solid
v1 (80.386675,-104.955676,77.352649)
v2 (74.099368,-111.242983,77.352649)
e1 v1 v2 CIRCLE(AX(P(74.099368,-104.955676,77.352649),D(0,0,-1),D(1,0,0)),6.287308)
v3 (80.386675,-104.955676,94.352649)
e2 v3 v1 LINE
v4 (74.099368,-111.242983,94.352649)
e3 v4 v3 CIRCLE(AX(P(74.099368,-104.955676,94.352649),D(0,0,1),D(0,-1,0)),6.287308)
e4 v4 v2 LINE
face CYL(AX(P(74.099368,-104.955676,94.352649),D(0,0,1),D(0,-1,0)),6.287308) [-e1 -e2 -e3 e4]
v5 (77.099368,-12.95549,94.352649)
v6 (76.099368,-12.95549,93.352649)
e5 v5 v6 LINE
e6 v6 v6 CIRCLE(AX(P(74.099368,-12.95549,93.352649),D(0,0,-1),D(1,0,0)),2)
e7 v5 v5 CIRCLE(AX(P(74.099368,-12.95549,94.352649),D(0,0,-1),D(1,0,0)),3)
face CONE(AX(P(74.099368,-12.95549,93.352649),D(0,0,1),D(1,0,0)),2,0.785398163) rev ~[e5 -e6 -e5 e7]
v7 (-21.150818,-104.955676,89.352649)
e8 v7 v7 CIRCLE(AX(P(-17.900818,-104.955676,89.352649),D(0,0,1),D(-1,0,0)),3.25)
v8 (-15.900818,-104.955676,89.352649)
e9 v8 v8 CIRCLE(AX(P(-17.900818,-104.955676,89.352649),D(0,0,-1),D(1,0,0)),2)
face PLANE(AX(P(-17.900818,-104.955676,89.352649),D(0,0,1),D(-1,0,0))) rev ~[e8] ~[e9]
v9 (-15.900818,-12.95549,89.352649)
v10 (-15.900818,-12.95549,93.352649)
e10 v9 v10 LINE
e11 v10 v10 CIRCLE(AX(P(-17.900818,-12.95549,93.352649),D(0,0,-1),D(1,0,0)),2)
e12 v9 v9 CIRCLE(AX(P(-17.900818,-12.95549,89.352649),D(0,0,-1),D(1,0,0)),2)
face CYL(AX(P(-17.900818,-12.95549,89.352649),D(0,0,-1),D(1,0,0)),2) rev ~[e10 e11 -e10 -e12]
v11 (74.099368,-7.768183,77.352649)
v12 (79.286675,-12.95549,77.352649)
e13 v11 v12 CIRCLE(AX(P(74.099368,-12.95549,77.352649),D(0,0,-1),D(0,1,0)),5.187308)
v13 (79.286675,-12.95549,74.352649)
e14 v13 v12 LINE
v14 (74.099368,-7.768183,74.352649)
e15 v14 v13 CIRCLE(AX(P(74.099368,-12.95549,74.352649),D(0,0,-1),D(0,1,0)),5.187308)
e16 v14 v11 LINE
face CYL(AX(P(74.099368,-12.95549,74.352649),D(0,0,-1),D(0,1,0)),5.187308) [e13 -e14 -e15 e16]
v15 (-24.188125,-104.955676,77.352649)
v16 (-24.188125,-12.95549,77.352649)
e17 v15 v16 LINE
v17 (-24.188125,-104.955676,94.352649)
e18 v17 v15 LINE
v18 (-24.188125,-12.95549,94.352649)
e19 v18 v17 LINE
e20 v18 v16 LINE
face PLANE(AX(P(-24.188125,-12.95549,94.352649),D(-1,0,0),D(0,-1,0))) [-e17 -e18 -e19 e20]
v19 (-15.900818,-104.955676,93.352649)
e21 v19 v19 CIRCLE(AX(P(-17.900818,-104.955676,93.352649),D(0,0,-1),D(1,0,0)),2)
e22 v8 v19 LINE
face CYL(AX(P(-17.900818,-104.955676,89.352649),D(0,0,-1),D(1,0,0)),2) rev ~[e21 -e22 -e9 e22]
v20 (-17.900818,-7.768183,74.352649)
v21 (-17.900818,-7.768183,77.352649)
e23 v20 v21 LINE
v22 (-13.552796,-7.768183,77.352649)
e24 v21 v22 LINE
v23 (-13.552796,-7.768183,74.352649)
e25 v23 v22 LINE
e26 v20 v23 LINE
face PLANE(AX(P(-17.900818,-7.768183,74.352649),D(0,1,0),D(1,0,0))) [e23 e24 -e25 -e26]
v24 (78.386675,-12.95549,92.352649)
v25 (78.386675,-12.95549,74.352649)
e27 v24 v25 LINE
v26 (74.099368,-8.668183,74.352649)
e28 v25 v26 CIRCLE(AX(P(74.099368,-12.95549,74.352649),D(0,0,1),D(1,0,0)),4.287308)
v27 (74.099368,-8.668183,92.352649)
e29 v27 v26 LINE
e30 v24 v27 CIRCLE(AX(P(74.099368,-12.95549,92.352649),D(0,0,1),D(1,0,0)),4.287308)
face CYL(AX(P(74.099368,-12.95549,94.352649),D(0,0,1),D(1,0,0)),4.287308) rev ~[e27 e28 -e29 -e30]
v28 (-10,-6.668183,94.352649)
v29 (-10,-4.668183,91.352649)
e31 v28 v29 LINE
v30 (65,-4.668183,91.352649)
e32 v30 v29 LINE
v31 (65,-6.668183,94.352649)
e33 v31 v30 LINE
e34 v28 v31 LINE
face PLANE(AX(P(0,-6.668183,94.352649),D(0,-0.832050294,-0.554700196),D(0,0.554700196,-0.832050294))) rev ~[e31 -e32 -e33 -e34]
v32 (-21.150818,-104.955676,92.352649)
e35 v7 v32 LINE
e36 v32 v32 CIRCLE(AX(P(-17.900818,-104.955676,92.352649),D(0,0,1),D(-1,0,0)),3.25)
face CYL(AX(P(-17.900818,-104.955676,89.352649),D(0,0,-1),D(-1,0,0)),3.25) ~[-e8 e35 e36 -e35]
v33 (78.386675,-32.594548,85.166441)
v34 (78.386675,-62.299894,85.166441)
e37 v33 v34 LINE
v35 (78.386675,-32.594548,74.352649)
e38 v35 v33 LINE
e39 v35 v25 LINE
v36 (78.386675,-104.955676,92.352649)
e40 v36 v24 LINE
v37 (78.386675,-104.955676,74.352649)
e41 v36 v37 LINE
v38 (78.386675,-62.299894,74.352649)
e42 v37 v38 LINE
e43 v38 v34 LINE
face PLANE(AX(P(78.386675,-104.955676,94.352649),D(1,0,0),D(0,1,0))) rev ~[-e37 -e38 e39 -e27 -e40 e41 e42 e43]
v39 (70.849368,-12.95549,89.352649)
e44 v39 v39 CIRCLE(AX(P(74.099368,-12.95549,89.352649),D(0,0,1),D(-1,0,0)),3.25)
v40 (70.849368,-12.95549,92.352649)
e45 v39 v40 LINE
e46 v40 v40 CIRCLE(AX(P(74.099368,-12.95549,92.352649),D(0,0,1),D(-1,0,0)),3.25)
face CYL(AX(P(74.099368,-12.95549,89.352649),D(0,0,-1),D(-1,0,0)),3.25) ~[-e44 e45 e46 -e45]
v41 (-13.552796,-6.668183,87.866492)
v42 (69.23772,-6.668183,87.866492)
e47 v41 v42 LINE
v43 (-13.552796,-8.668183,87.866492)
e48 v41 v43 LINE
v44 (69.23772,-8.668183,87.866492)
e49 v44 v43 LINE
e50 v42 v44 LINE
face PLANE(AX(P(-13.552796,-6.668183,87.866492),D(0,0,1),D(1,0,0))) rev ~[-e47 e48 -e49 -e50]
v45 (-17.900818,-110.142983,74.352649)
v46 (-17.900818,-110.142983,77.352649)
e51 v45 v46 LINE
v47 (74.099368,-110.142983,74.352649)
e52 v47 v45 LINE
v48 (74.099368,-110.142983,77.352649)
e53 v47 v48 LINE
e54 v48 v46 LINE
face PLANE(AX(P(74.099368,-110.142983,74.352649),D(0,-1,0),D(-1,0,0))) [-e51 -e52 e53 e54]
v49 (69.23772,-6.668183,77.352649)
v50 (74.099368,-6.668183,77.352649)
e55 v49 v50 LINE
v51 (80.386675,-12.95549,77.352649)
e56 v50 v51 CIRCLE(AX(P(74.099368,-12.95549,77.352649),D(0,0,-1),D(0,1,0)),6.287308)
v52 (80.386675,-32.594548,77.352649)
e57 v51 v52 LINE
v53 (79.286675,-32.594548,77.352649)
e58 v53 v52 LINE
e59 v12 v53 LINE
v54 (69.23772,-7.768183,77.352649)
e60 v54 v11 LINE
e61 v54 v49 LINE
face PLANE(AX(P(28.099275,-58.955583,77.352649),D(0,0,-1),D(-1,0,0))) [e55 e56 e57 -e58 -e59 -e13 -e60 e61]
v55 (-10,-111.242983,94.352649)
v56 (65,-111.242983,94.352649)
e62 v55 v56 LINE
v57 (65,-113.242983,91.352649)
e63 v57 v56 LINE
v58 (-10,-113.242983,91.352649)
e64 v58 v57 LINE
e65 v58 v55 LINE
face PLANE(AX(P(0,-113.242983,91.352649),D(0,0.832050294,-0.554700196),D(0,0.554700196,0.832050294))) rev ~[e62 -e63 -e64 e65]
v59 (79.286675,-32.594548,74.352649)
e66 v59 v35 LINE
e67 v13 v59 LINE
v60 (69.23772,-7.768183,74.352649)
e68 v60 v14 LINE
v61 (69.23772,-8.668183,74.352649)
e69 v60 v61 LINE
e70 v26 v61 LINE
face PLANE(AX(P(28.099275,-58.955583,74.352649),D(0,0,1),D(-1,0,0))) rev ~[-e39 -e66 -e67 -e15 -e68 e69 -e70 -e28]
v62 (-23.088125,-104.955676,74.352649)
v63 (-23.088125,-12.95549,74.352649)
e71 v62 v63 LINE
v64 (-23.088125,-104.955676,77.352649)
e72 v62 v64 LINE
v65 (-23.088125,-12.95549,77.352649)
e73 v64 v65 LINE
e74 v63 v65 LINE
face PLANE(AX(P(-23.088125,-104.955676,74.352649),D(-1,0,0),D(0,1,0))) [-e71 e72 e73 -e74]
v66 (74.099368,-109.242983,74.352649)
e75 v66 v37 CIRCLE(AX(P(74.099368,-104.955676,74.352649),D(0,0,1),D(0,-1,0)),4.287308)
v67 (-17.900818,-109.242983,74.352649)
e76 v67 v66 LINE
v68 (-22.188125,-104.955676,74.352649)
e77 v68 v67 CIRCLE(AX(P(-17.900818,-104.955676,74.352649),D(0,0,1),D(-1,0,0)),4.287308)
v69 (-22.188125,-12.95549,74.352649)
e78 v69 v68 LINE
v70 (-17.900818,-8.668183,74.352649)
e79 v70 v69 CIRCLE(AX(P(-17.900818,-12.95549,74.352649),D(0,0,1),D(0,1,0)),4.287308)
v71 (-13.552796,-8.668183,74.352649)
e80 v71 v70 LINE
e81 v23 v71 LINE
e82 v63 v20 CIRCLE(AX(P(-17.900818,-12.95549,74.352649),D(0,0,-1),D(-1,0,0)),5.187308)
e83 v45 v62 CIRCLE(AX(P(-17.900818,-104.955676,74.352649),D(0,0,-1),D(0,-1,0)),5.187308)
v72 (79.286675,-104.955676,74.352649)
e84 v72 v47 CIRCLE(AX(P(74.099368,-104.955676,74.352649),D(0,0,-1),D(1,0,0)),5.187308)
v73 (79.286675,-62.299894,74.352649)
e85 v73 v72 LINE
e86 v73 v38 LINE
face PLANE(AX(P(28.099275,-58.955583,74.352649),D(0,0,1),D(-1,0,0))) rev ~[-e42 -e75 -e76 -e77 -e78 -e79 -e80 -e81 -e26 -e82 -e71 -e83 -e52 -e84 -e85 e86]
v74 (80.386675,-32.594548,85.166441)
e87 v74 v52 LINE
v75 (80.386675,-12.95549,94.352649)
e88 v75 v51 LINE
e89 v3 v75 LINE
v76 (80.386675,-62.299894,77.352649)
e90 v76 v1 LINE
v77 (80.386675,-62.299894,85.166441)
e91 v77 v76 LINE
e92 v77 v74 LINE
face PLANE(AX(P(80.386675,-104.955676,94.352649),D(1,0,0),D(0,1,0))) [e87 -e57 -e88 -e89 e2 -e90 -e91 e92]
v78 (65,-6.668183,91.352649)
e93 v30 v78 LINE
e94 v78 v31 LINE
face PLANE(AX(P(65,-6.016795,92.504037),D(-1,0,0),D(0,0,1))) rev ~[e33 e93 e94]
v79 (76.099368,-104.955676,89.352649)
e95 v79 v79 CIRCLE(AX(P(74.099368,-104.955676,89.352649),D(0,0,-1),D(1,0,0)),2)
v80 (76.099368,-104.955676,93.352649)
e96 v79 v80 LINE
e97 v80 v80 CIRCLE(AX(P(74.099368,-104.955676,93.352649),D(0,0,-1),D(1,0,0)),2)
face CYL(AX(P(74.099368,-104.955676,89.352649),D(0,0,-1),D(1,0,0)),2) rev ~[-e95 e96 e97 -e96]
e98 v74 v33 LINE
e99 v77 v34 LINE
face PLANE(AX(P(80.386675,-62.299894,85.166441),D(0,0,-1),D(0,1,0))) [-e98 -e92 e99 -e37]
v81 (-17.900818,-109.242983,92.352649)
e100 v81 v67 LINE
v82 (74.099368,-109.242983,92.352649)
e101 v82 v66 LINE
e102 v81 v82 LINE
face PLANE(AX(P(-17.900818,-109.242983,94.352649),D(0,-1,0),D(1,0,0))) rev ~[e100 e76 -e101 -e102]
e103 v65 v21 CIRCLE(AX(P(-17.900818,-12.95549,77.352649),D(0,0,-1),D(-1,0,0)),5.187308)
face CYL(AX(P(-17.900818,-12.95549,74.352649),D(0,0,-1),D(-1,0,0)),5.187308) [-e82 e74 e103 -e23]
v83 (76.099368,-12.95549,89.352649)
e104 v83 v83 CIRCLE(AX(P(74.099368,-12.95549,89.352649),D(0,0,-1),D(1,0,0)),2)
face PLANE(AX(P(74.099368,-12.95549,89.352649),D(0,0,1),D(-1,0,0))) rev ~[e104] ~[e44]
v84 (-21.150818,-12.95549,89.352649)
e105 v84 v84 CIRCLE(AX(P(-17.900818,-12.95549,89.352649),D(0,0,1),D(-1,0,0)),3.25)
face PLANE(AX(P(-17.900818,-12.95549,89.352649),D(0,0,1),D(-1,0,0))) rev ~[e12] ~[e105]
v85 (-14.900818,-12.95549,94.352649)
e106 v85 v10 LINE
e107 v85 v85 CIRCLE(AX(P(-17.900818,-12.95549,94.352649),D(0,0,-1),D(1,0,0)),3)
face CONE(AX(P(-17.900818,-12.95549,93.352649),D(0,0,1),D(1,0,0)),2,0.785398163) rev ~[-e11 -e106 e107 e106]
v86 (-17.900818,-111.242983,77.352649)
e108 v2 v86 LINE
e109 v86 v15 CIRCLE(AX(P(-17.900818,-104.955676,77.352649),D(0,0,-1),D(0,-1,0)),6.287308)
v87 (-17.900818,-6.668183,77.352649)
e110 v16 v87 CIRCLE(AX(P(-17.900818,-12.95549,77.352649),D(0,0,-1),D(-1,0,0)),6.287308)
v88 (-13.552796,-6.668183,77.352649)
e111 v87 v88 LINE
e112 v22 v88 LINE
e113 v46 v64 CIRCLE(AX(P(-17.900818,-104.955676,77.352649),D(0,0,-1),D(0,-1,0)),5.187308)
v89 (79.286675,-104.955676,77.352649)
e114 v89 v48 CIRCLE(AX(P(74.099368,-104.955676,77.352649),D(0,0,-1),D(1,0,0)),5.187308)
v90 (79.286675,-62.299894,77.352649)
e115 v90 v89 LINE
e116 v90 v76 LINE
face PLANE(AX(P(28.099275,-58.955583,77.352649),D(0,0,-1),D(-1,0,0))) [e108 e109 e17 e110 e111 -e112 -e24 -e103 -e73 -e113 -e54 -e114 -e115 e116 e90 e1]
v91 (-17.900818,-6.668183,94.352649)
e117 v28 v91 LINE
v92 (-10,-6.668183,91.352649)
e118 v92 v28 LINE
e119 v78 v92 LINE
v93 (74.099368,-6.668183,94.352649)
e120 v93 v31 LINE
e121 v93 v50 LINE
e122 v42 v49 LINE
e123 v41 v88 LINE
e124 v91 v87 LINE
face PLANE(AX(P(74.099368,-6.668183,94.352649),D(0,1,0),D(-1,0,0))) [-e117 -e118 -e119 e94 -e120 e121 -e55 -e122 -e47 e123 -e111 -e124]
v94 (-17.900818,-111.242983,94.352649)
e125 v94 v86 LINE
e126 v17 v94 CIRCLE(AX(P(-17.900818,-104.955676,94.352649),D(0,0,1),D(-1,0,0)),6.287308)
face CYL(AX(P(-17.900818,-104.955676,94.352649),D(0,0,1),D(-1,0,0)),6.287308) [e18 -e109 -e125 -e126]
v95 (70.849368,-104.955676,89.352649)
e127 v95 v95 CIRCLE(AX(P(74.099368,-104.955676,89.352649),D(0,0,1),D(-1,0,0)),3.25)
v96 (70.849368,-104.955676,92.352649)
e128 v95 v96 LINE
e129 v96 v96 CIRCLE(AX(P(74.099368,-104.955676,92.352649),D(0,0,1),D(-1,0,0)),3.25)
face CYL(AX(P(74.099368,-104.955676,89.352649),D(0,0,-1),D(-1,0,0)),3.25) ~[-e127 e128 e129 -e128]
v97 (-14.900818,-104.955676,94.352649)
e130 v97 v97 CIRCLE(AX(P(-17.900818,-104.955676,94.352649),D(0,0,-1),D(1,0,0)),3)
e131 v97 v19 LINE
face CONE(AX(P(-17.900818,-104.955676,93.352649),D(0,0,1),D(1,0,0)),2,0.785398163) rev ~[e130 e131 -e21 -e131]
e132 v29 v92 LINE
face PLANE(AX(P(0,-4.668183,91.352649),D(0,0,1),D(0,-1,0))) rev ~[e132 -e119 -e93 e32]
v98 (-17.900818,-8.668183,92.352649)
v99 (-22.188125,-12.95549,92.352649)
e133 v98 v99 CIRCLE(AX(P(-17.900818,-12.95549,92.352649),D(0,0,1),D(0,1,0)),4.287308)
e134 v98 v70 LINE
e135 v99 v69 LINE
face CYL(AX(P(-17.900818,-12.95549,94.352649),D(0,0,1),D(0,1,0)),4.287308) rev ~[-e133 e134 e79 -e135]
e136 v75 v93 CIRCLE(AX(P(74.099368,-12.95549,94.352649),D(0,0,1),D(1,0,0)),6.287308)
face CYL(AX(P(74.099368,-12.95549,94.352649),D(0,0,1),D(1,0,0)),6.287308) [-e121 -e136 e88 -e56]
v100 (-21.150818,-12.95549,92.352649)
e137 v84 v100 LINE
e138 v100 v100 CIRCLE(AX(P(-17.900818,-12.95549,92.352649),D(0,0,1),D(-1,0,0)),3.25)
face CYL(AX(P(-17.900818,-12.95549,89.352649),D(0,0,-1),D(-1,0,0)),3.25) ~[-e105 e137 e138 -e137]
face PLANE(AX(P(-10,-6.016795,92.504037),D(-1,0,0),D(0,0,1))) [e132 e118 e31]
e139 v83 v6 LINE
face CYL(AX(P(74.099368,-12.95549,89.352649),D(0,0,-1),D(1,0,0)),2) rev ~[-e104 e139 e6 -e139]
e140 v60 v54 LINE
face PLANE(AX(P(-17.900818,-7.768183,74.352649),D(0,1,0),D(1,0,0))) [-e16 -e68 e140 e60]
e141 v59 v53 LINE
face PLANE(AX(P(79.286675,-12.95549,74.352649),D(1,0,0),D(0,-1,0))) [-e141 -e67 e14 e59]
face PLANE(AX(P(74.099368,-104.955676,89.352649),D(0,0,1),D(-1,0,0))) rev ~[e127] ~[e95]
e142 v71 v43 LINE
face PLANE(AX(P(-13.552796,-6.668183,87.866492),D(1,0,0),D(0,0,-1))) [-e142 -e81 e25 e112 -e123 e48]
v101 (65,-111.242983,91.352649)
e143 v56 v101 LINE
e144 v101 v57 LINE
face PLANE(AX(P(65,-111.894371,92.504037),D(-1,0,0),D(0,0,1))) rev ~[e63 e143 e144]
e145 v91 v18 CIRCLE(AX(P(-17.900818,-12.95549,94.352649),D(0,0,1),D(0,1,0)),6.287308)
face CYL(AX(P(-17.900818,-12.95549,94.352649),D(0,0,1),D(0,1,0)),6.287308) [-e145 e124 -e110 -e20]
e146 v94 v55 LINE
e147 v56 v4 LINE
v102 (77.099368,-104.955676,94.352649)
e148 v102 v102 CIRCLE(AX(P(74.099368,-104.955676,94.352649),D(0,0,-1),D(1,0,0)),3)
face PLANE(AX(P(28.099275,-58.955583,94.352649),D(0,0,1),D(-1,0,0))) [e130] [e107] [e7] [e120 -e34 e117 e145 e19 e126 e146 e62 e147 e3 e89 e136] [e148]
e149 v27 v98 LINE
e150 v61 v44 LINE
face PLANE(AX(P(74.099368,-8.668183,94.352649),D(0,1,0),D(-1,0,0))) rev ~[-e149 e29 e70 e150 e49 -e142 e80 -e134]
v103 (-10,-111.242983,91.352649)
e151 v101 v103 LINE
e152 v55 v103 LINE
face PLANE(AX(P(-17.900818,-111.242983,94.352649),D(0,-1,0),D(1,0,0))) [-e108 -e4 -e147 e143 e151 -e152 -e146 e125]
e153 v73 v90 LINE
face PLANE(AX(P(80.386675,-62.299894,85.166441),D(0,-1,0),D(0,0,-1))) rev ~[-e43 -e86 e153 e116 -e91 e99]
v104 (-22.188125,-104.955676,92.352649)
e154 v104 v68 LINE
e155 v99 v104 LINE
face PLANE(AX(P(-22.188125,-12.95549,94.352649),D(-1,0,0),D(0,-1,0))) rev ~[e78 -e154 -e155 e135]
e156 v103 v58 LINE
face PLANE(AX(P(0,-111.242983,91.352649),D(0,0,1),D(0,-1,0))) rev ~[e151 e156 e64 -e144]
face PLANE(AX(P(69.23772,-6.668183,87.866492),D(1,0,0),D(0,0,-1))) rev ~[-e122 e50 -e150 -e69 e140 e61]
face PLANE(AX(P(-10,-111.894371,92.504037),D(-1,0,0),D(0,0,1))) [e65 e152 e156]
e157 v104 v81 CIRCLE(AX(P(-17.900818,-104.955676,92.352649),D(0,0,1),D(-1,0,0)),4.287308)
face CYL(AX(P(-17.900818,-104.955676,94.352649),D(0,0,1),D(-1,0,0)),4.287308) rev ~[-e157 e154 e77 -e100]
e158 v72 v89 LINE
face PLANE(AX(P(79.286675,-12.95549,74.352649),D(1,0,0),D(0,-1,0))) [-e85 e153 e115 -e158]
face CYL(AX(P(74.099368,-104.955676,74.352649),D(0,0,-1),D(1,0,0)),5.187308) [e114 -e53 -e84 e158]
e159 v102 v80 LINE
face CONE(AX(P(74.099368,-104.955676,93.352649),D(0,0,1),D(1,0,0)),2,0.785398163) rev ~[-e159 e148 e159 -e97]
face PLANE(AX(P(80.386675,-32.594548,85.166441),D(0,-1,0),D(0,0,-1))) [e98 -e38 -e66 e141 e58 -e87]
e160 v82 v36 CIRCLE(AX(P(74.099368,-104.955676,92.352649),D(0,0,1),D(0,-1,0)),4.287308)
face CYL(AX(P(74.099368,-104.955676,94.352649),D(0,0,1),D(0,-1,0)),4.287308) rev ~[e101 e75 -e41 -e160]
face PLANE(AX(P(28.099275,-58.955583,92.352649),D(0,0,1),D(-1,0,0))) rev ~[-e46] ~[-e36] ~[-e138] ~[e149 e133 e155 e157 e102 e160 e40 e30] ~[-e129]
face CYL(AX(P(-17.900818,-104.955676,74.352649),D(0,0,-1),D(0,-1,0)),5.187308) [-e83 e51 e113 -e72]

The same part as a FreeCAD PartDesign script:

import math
import FreeCAD as App
import Part
import Sketcher

V = App.Vector


def edges_at(feature, points):
    """Names of the edges that pass closest to the given points."""
    edges = feature.Shape.Edges
    near = lambda p: min(range(len(edges)), key=lambda i: edges[i].distToShape(Part.Vertex(*p))[0])
    return sorted({f"Edge{near(p) + 1}" for p in points})

doc = App.newDocument("Part")
body = doc.addObject("PartDesign::Body", "Body")

# Sketch on XY plane
sketch1 = body.newObject("Sketcher::SketchObject", "Sketch")
sketch1.AttachmentSupport = (doc.getObject("XY_Plane"), [""])
sketch1.MapMode = "FlatFace"
sketch1.AttachmentOffset = App.Placement(V(0, 0, 89.352649), App.Rotation())
sketch1.addGeometry(Part.Circle(V(74.1, -105, 0), V(0, 0, 1), 3.2), False)
sketch1.addConstraint([
    Sketcher.Constraint("Diameter", 0, 6.5),
    Sketcher.Constraint("DistanceX", -1, 1, 0, 3, 74.099368),
    Sketcher.Constraint("DistanceY", 0, 3, -1, 1, 104.955676),
])
pad1 = body.newObject("PartDesign::Pad", "Pad")
pad1.Profile = sketch1
pad1.Length = 3
body2 = doc.addObject("PartDesign::Body", "Body001")

# Sketch on XY plane
sketch2 = body2.newObject("Sketcher::SketchObject", "Sketch001")
sketch2.AttachmentSupport = (doc.getObject("XY_Plane001"), [""])
sketch2.MapMode = "FlatFace"
sketch2.AttachmentOffset = App.Placement(V(0, 0, 89.352649), App.Rotation())
sketch2.addGeometry(Part.Circle(V(-17.9, -105, 0), V(0, 0, 1), 3.2), False)
sketch2.addConstraint([
    Sketcher.Constraint("Diameter", 0, 6.5),
    Sketcher.Constraint("DistanceX", 0, 3, -1, 1, 17.900818),
    Sketcher.Constraint("DistanceY", 0, 3, -1, 1, 104.955676),
])
pad2 = body2.newObject("PartDesign::Pad", "Pad001")
pad2.Profile = sketch2
pad2.Length = 3
body3 = doc.addObject("PartDesign::Body", "Body002")

# Sketch on XY plane
sketch3 = body3.newObject("Sketcher::SketchObject", "Sketch002")
sketch3.AttachmentSupport = (doc.getObject("XY_Plane002"), [""])
sketch3.MapMode = "FlatFace"
sketch3.AttachmentOffset = App.Placement(V(0, 0, 89.352649), App.Rotation())
sketch3.addGeometry(Part.Circle(V(-17.9, -13, 0), V(0, 0, 1), 3.2), False)
sketch3.addConstraint([
    Sketcher.Constraint("Diameter", 0, 6.5),
    Sketcher.Constraint("DistanceY", 0, 3, -1, 1, 12.95549),
    Sketcher.Constraint("DistanceX", 0, 3, -1, 1, 17.900818),
])
pad3 = body3.newObject("PartDesign::Pad", "Pad002")
pad3.Profile = sketch3
pad3.Length = 3
body4 = doc.addObject("PartDesign::Body", "Body003")

# Sketch on XY plane
sketch4 = body4.newObject("Sketcher::SketchObject", "Sketch003")
sketch4.AttachmentSupport = (doc.getObject("XY_Plane003"), [""])
sketch4.MapMode = "FlatFace"
sketch4.AttachmentOffset = App.Placement(V(0, 0, 89.352649), App.Rotation())
sketch4.addGeometry(Part.Circle(V(74.1, -13, 0), V(0, 0, 1), 3.2), False)
sketch4.addConstraint([
    Sketcher.Constraint("Diameter", 0, 6.5),
    Sketcher.Constraint("DistanceY", 0, 3, -1, 1, 12.95549),
    Sketcher.Constraint("DistanceX", -1, 1, 0, 3, 74.099368),
])
pad4 = body4.newObject("PartDesign::Pad", "Pad003")
pad4.Profile = sketch4
pad4.Length = 3
body.AllowCompound = True
doc.recompute()

boolean = body.newObject("PartDesign::Boolean", "Boolean")
boolean.Type = "Fuse"
boolean.addObjects([body2])
doc.recompute()

boolean2 = body.newObject("PartDesign::Boolean", "Boolean001")
boolean2.Type = "Fuse"
boolean2.addObjects([body3])
doc.recompute()

boolean3 = body.newObject("PartDesign::Boolean", "Boolean002")
boolean3.Type = "Fuse"
boolean3.addObjects([body4])

# Sketch on XY plane
sketch5 = body.newObject("Sketcher::SketchObject", "Sketch004")
sketch5.AttachmentSupport = (doc.getObject("XY_Plane"), [""])
sketch5.MapMode = "FlatFace"
sketch5.AttachmentOffset = App.Placement(V(0, 0, 92.352649), App.Rotation())
sketch5.addGeometry([
    Part.LineSegment(V(-17.9, -109.2, 0), V(74.1, -109.2, 0)),  # 0
    Part.ArcOfCircle(Part.Circle(V(74.1, -105, 0), V(0, 0, 1), 4.3), math.radians(-90), math.radians(0)),  # 1
    Part.LineSegment(V(78.4, -105, 0), V(78.4, -13, 0)),  # 2
    Part.ArcOfCircle(Part.Circle(V(74.1, -13, 0), V(0, 0, 1), 4.3), math.radians(0), math.radians(90)),  # 3
    Part.LineSegment(V(74.1, -8.7, 0), V(-17.9, -8.7, 0)),  # 4
    Part.ArcOfCircle(Part.Circle(V(-17.9, -13, 0), V(0, 0, 1), 4.3), math.radians(90), math.radians(180)),  # 5
    Part.LineSegment(V(-22.2, -13, 0), V(-22.2, -105, 0)),  # 6
    Part.ArcOfCircle(Part.Circle(V(-17.9, -105, 0), V(0, 0, 1), 4.3), math.radians(180), math.radians(270)),  # 7
], False)
sketch5.addConstraint([
    Sketcher.Constraint("Tangent", 0, 2, 1, 1),
    Sketcher.Constraint("Tangent", 1, 2, 2, 1),
    Sketcher.Constraint("Tangent", 2, 2, 3, 1),
    Sketcher.Constraint("Tangent", 3, 2, 4, 1),
    Sketcher.Constraint("Tangent", 4, 2, 5, 1),
    Sketcher.Constraint("Tangent", 5, 2, 6, 1),
    Sketcher.Constraint("Tangent", 6, 2, 7, 1),
    Sketcher.Constraint("Tangent", 7, 2, 0, 1),
    Sketcher.Constraint("Horizontal", 0),
    Sketcher.Constraint("Vertical", 2),
    Sketcher.Constraint("Horizontal", 4),
    Sketcher.Constraint("Vertical", 6),
    Sketcher.Constraint("Equal", 1, 3),
    Sketcher.Constraint("Equal", 3, 5),
    Sketcher.Constraint("Equal", 5, 7),
    Sketcher.Constraint("Equal", 4, 2),
    Sketcher.Constraint("Radius", 1, 4.287308),
    Sketcher.Constraint("DistanceX", 0, 1, 0, 2, 92.000185),
    Sketcher.Constraint("DistanceY", 3, 3, -1, 1, 12.95549),
    Sketcher.Constraint("DistanceX", -1, 1, 1, 3, 74.099368),
])
pad5 = body.newObject("PartDesign::Pad", "Pad004")
pad5.Profile = sketch5
pad5.Length = 2

# Sketch on XY plane
sketch6 = body.newObject("Sketcher::SketchObject", "Sketch005")
sketch6.AttachmentSupport = (doc.getObject("XY_Plane"), [""])
sketch6.MapMode = "FlatFace"
sketch6.AttachmentOffset = App.Placement(V(0, 0, 94.352649), App.Rotation())
sketch6.addGeometry([
    Part.LineSegment(V(-17.9, -111.2, 0), V(74.1, -111.2, 0)),  # 0
    Part.ArcOfCircle(Part.Circle(V(74.1, -105, 0), V(0, 0, 1), 6.3), math.radians(-90), math.radians(0)),  # 1
    Part.LineSegment(V(80.4, -105, 0), V(80.4, -13, 0)),  # 2
    Part.ArcOfCircle(Part.Circle(V(74.1, -13, 0), V(0, 0, 1), 6.3), math.radians(0), math.radians(90)),  # 3
    Part.LineSegment(V(74.1, -6.7, 0), V(-17.9, -6.7, 0)),  # 4
    Part.ArcOfCircle(Part.Circle(V(-17.9, -13, 0), V(0, 0, 1), 6.3), math.radians(90), math.radians(180)),  # 5
    Part.LineSegment(V(-24.2, -13, 0), V(-24.2, -105, 0)),  # 6
    Part.ArcOfCircle(Part.Circle(V(-17.9, -105, 0), V(0, 0, 1), 6.3), math.radians(180), math.radians(270)),  # 7
    Part.LineSegment(V(74.1, -109.2, 0), V(-17.9, -109.2, 0)),  # 8
    Part.ArcOfCircle(Part.Circle(V(-17.9, -105, 0), V(0, 0, 1), 4.3), math.radians(180), math.radians(270)),  # 9
    Part.LineSegment(V(-22.2, -105, 0), V(-22.2, -13, 0)),  # 10
    Part.ArcOfCircle(Part.Circle(V(-17.9, -13, 0), V(0, 0, 1), 4.3), math.radians(90), math.radians(180)),  # 11
    Part.LineSegment(V(-17.9, -8.7, 0), V(74.1, -8.7, 0)),  # 12
    Part.ArcOfCircle(Part.Circle(V(74.1, -13, 0), V(0, 0, 1), 4.3), math.radians(0), math.radians(90)),  # 13
    Part.LineSegment(V(78.4, -13, 0), V(78.4, -105, 0)),  # 14
    Part.ArcOfCircle(Part.Circle(V(74.1, -105, 0), V(0, 0, 1), 4.3), math.radians(-90), math.radians(0)),  # 15
], False)
sketch6.addConstraint([
    Sketcher.Constraint("Tangent", 0, 2, 1, 1),
    Sketcher.Constraint("Tangent", 1, 2, 2, 1),
    Sketcher.Constraint("Tangent", 2, 2, 3, 1),
    Sketcher.Constraint("Tangent", 3, 2, 4, 1),
    Sketcher.Constraint("Tangent", 4, 2, 5, 1),
    Sketcher.Constraint("Tangent", 5, 2, 6, 1),
    Sketcher.Constraint("Tangent", 6, 2, 7, 1),
    Sketcher.Constraint("Tangent", 7, 2, 0, 1),
    Sketcher.Constraint("Tangent", 8, 2, 9, 2),
    Sketcher.Constraint("Tangent", 9, 1, 10, 1),
    Sketcher.Constraint("Tangent", 10, 2, 11, 2),
    Sketcher.Constraint("Tangent", 11, 1, 12, 1),
    Sketcher.Constraint("Tangent", 12, 2, 13, 2),
    Sketcher.Constraint("Tangent", 13, 1, 14, 1),
    Sketcher.Constraint("Tangent", 14, 2, 15, 2),
    Sketcher.Constraint("Tangent", 15, 1, 8, 1),
    Sketcher.Constraint("Horizontal", 0),
    Sketcher.Constraint("Vertical", 2),
    Sketcher.Constraint("Horizontal", 4),
    Sketcher.Constraint("Vertical", 6),
    Sketcher.Constraint("Horizontal", 8),
    Sketcher.Constraint("Vertical", 10),
    Sketcher.Constraint("Horizontal", 12),
    Sketcher.Constraint("Vertical", 14),
    Sketcher.Constraint("Coincident", 9, 3, 7, 3),
    Sketcher.Constraint("Coincident", 11, 3, 5, 3),
    Sketcher.Constraint("Coincident", 13, 3, 3, 3),
    Sketcher.Constraint("Equal", 1, 3),
    Sketcher.Constraint("Equal", 3, 5),
    Sketcher.Constraint("Equal", 5, 7),
    Sketcher.Constraint("Equal", 13, 15),
    Sketcher.Constraint("Equal", 12, 2),
    Sketcher.Constraint("DistanceY", 7, 2, 8, 2, 2.0),
    Sketcher.Constraint("Radius", 1, 6.287308),
    Sketcher.Constraint("DistanceX", 0, 1, 0, 2, 92.000185),
    Sketcher.Constraint("DistanceY", 3, 3, -1, 1, 12.95549),
    Sketcher.Constraint("DistanceX", -1, 1, 1, 3, 74.099368),
])
pad6 = body.newObject("PartDesign::Pad", "Pad005")
pad6.Profile = sketch6
pad6.Length = 20
pad6.Reversed = True

# Sketch on XY plane
sketch7 = body.newObject("Sketcher::SketchObject", "Sketch006")
sketch7.AttachmentSupport = (doc.getObject("XY_Plane"), [""])
sketch7.MapMode = "FlatFace"
sketch7.AttachmentOffset = App.Placement(V(0, 0, 89.352649), App.Rotation())
sketch7.addGeometry([
    Part.Circle(V(-17.9, -105, 0), V(0, 0, 1), 2),
    Part.Circle(V(74.1, -105, 0), V(0, 0, 1), 2),
    Part.Circle(V(74.1, -13, 0), V(0, 0, 1), 2),
    Part.Circle(V(-17.9, -13, 0), V(0, 0, 1), 2),
], False)
sketch7.addConstraint([
    Sketcher.Constraint("Equal", 0, 1),
    Sketcher.Constraint("Equal", 1, 2),
    Sketcher.Constraint("Equal", 2, 3),
    Sketcher.Constraint("Horizontal", 0, 3, 1, 3),
    Sketcher.Constraint("Horizontal", 2, 3, 3, 3),
    Sketcher.Constraint("Vertical", 1, 3, 2, 3),
    Sketcher.Constraint("Vertical", 0, 3, 3, 3),
    Sketcher.Constraint("Diameter", 0, 4.0),
    Sketcher.Constraint("DistanceY", 2, 3, -1, 1, 12.95549),
    Sketcher.Constraint("DistanceX", 0, 3, -1, 1, 17.900818),
    Sketcher.Constraint("DistanceY", 0, 3, -1, 1, 104.955676),
    Sketcher.Constraint("DistanceX", -1, 1, 1, 3, 74.099368),
])
pocket1 = body.newObject("PartDesign::Pocket", "Pocket")
pocket1.Profile = sketch7
pocket1.Length = 5
pocket1.Reversed = True

# Sketch on XZ plane
sketch8 = body.newObject("Sketcher::SketchObject", "Sketch007")
sketch8.AttachmentSupport = (doc.getObject("XZ_Plane"), [""])
sketch8.MapMode = "FlatFace"
sketch8.AttachmentOffset = App.Placement(V(0, 0, 6.668183), App.Rotation())
sketch8.addGeometry([
    Part.LineSegment(V(-14, 74, 0), V(-14, 88, 0)),
    Part.LineSegment(V(-14, 88, 0), V(69, 88, 0)),
    Part.LineSegment(V(69, 88, 0), V(69, 74, 0)),
    Part.LineSegment(V(69, 74, 0), V(-14, 74, 0)),
], False)
sketch8.addConstraint([
    Sketcher.Constraint("Coincident", 0, 2, 1, 1),
    Sketcher.Constraint("Coincident", 1, 2, 2, 1),
    Sketcher.Constraint("Coincident", 2, 2, 3, 1),
    Sketcher.Constraint("Coincident", 3, 2, 0, 1),
    Sketcher.Constraint("Vertical", 0),
    Sketcher.Constraint("Horizontal", 1),
    Sketcher.Constraint("Vertical", 2),
    Sketcher.Constraint("Horizontal", 3),
    Sketcher.Constraint("DistanceY", 0, 1, 0, 2, 14.032058),
    Sketcher.Constraint("DistanceX", 1, 1, 1, 2, 82.790516),
    Sketcher.Constraint("DistanceY", -1, 1, 0, 2, 87.866492),
    Sketcher.Constraint("DistanceX", -1, 1, 1, 2, 69.23772),
])
pocket2 = body.newObject("PartDesign::Pocket", "Pocket001")
pocket2.Profile = sketch8
pocket2.Type = "UpToFirst"
pocket2.Reversed = True

# Sketch on YZ plane
sketch9 = body.newObject("Sketcher::SketchObject", "Sketch008")
sketch9.AttachmentSupport = (doc.getObject("YZ_Plane"), [""])
sketch9.MapMode = "FlatFace"
sketch9.AttachmentOffset = App.Placement(V(0, 0, 80.386675), App.Rotation())
sketch9.addGeometry([
    Part.LineSegment(V(-33, 85, 0), V(-62, 85, 0)),
    Part.LineSegment(V(-62, 85, 0), V(-62, 68, 0)),
    Part.LineSegment(V(-62, 68, 0), V(-33, 68, 0)),
    Part.LineSegment(V(-33, 68, 0), V(-33, 85, 0)),
], False)
sketch9.addConstraint([
    Sketcher.Constraint("Coincident", 0, 2, 1, 1),
    Sketcher.Constraint("Coincident", 1, 2, 2, 1),
    Sketcher.Constraint("Coincident", 2, 2, 3, 1),
    Sketcher.Constraint("Coincident", 3, 2, 0, 1),
    Sketcher.Constraint("Horizontal", 0),
    Sketcher.Constraint("Vertical", 1),
    Sketcher.Constraint("Horizontal", 2),
    Sketcher.Constraint("Vertical", 3),
    Sketcher.Constraint("DistanceY", 1, 2, 1, 1, 17.0),
    Sketcher.Constraint("DistanceX", 0, 2, 0, 1, 29.705347),
    Sketcher.Constraint("DistanceY", -1, 1, 0, 2, 85.166441),
    Sketcher.Constraint("DistanceX", 0, 2, -1, 1, 62.299894),
])
pocket3 = body.newObject("PartDesign::Pocket", "Pocket002")
pocket3.Profile = sketch9
pocket3.Type = "UpToFirst"
doc.recompute()

chamfer = body.newObject("PartDesign::Chamfer", "Chamfer")
chamfer.Base = (pocket3, edges_at(pocket3, [
    (-19.901, -12.955, 94.353),
    (72.099, -12.955, 94.353),
    (72.099, -104.956, 94.353),
    (-19.901, -104.956, 94.353),
]))
chamfer.Size = 1

# Sketch on XY plane
sketch10 = body.newObject("Sketcher::SketchObject", "Sketch009")
sketch10.AttachmentSupport = (doc.getObject("XY_Plane"), [""])
sketch10.MapMode = "FlatFace"
sketch10.AttachmentOffset = App.Placement(V(0, 0, 74.352649), App.Rotation())
sketch10.addGeometry([
    Part.LineSegment(V(80, -13, 0), V(80, -105, 0)),  # 0
    Part.ArcOfCircle(Part.Circle(V(74, -105, 0), V(0, 0, 1), 6), math.radians(-90), math.radians(0)),  # 1
    Part.LineSegment(V(74, -111, 0), V(-18, -111, 0)),  # 2
    Part.ArcOfCircle(Part.Circle(V(-18, -105, 0), V(0, 0, 1), 6), math.radians(180), math.radians(270)),  # 3
    Part.LineSegment(V(-24, -105, 0), V(-24, -13, 0)),  # 4
    Part.ArcOfCircle(Part.Circle(V(-18, -13, 0), V(0, 0, 1), 6), math.radians(90), math.radians(180)),  # 5
    Part.LineSegment(V(-18, -7, 0), V(74, -7, 0)),  # 6
    Part.ArcOfCircle(Part.Circle(V(74, -13, 0), V(0, 0, 1), 6), math.radians(0), math.radians(90)),  # 7
    Part.ArcOfCircle(Part.Circle(V(74, -105, 0), V(0, 0, 1), 5), math.radians(-90), math.radians(0)),  # 8
    Part.LineSegment(V(79, -105, 0), V(79, -13, 0)),  # 9
    Part.ArcOfCircle(Part.Circle(V(74, -13, 0), V(0, 0, 1), 5), math.radians(0), math.radians(90)),  # 10
    Part.LineSegment(V(74, -8, 0), V(-18, -8, 0)),  # 11
    Part.ArcOfCircle(Part.Circle(V(-18, -13, 0), V(0, 0, 1), 5), math.radians(90), math.radians(180)),  # 12
    Part.LineSegment(V(-23, -13, 0), V(-23, -105, 0)),  # 13
    Part.ArcOfCircle(Part.Circle(V(-18, -105, 0), V(0, 0, 1), 5), math.radians(180), math.radians(270)),  # 14
    Part.LineSegment(V(-18, -110, 0), V(74, -110, 0)),  # 15
], False)
sketch10.addConstraint([
    Sketcher.Constraint("Tangent", 0, 2, 1, 2),
    Sketcher.Constraint("Tangent", 1, 1, 2, 1),
    Sketcher.Constraint("Tangent", 2, 2, 3, 2),
    Sketcher.Constraint("Tangent", 3, 1, 4, 1),
    Sketcher.Constraint("Tangent", 4, 2, 5, 2),
    Sketcher.Constraint("Tangent", 5, 1, 6, 1),
    Sketcher.Constraint("Tangent", 6, 2, 7, 2),
    Sketcher.Constraint("Tangent", 7, 1, 0, 1),
    Sketcher.Constraint("Tangent", 8, 2, 9, 1),
    Sketcher.Constraint("Tangent", 9, 2, 10, 1),
    Sketcher.Constraint("Tangent", 10, 2, 11, 1),
    Sketcher.Constraint("Tangent", 11, 2, 12, 1),
    Sketcher.Constraint("Tangent", 12, 2, 13, 1),
    Sketcher.Constraint("Tangent", 13, 2, 14, 1),
    Sketcher.Constraint("Tangent", 14, 2, 15, 1),
    Sketcher.Constraint("Tangent", 15, 2, 8, 1),
    Sketcher.Constraint("Vertical", 0),
    Sketcher.Constraint("Horizontal", 2),
    Sketcher.Constraint("Vertical", 4),
    Sketcher.Constraint("Horizontal", 6),
    Sketcher.Constraint("Vertical", 9),
    Sketcher.Constraint("Horizontal", 11),
    Sketcher.Constraint("Vertical", 13),
    Sketcher.Constraint("Horizontal", 15),
    Sketcher.Constraint("Coincident", 8, 3, 1, 3),
    Sketcher.Constraint("Coincident", 10, 3, 7, 3),
    Sketcher.Constraint("Coincident", 12, 3, 5, 3),
    Sketcher.Constraint("Equal", 1, 3),
    Sketcher.Constraint("Equal", 3, 5),
    Sketcher.Constraint("Equal", 5, 7),
    Sketcher.Constraint("Equal", 12, 14),
    Sketcher.Constraint("Equal", 15, 0),
    Sketcher.Constraint("DistanceX", 8, 2, 0, 2, 1.1),
    Sketcher.Constraint("Radius", 1, 6.287308),
    Sketcher.Constraint("DistanceX", 2, 2, 2, 1, 92.000185),
    Sketcher.Constraint("DistanceY", 5, 3, -1, 1, 12.95549),
    Sketcher.Constraint("DistanceX", -1, 1, 1, 3, 74.099368),
])
pocket4 = body.newObject("PartDesign::Pocket", "Pocket003")
pocket4.Profile = sketch10
pocket4.Length = 3
pocket4.Reversed = True

# Sketch on YZ plane
sketch11 = body.newObject("Sketcher::SketchObject", "Sketch010")
sketch11.AttachmentSupport = (doc.getObject("YZ_Plane"), [""])
sketch11.MapMode = "FlatFace"
sketch11.addGeometry([
    Part.LineSegment(V(-4.7, 91.4, 0), V(-6.7, 94.4, 0)),  # 0
    Part.LineSegment(V(-6.7, 94.4, 0), V(-6.7, 91.4, 0)),  # 1
    Part.LineSegment(V(-6.7, 91.4, 0), V(-4.7, 91.4, 0)),  # 2
    Part.LineSegment(V(-111.2, 91.4, 0), V(-111.2, 94.4, 0)),  # 3
    Part.LineSegment(V(-111.2, 94.4, 0), V(-113.2, 91.4, 0)),  # 4
    Part.LineSegment(V(-113.2, 91.4, 0), V(-111.2, 91.4, 0)),  # 5
], False)
sketch11.addConstraint([
    Sketcher.Constraint("Coincident", 0, 2, 1, 1),
    Sketcher.Constraint("Coincident", 1, 2, 2, 1),
    Sketcher.Constraint("Coincident", 2, 2, 0, 1),
    Sketcher.Constraint("Coincident", 3, 2, 4, 1),
    Sketcher.Constraint("Coincident", 4, 2, 5, 1),
    Sketcher.Constraint("Coincident", 5, 2, 3, 1),
    Sketcher.Constraint("Vertical", 1),
    Sketcher.Constraint("Horizontal", 2),
    Sketcher.Constraint("Vertical", 3),
    Sketcher.Constraint("Horizontal", 5),
    Sketcher.Constraint("Horizontal", 0, 2, 3, 2),
    Sketcher.Constraint("Horizontal", 2, 2, 4, 2),
    Sketcher.Constraint("Equal", 2, 5),
    Sketcher.Constraint("DistanceX", 2, 1, 2, 2, 2.0),
    Sketcher.Constraint("DistanceY", 1, 2, 1, 1, 3.0),
    Sketcher.Constraint("DistanceX", 3, 2, 0, 2, 104.574801),
    Sketcher.Constraint("DistanceY", -1, 1, 0, 2, 94.352649),
    Sketcher.Constraint("DistanceX", 0, 2, -1, 1, 6.668183),
])
pad7 = body.newObject("PartDesign::Pad", "Pad006")
pad7.Profile = sketch11
pad7.Type = "TwoLengths"
pad7.Length = 65
pad7.Length2 = 10

doc.recompute()
